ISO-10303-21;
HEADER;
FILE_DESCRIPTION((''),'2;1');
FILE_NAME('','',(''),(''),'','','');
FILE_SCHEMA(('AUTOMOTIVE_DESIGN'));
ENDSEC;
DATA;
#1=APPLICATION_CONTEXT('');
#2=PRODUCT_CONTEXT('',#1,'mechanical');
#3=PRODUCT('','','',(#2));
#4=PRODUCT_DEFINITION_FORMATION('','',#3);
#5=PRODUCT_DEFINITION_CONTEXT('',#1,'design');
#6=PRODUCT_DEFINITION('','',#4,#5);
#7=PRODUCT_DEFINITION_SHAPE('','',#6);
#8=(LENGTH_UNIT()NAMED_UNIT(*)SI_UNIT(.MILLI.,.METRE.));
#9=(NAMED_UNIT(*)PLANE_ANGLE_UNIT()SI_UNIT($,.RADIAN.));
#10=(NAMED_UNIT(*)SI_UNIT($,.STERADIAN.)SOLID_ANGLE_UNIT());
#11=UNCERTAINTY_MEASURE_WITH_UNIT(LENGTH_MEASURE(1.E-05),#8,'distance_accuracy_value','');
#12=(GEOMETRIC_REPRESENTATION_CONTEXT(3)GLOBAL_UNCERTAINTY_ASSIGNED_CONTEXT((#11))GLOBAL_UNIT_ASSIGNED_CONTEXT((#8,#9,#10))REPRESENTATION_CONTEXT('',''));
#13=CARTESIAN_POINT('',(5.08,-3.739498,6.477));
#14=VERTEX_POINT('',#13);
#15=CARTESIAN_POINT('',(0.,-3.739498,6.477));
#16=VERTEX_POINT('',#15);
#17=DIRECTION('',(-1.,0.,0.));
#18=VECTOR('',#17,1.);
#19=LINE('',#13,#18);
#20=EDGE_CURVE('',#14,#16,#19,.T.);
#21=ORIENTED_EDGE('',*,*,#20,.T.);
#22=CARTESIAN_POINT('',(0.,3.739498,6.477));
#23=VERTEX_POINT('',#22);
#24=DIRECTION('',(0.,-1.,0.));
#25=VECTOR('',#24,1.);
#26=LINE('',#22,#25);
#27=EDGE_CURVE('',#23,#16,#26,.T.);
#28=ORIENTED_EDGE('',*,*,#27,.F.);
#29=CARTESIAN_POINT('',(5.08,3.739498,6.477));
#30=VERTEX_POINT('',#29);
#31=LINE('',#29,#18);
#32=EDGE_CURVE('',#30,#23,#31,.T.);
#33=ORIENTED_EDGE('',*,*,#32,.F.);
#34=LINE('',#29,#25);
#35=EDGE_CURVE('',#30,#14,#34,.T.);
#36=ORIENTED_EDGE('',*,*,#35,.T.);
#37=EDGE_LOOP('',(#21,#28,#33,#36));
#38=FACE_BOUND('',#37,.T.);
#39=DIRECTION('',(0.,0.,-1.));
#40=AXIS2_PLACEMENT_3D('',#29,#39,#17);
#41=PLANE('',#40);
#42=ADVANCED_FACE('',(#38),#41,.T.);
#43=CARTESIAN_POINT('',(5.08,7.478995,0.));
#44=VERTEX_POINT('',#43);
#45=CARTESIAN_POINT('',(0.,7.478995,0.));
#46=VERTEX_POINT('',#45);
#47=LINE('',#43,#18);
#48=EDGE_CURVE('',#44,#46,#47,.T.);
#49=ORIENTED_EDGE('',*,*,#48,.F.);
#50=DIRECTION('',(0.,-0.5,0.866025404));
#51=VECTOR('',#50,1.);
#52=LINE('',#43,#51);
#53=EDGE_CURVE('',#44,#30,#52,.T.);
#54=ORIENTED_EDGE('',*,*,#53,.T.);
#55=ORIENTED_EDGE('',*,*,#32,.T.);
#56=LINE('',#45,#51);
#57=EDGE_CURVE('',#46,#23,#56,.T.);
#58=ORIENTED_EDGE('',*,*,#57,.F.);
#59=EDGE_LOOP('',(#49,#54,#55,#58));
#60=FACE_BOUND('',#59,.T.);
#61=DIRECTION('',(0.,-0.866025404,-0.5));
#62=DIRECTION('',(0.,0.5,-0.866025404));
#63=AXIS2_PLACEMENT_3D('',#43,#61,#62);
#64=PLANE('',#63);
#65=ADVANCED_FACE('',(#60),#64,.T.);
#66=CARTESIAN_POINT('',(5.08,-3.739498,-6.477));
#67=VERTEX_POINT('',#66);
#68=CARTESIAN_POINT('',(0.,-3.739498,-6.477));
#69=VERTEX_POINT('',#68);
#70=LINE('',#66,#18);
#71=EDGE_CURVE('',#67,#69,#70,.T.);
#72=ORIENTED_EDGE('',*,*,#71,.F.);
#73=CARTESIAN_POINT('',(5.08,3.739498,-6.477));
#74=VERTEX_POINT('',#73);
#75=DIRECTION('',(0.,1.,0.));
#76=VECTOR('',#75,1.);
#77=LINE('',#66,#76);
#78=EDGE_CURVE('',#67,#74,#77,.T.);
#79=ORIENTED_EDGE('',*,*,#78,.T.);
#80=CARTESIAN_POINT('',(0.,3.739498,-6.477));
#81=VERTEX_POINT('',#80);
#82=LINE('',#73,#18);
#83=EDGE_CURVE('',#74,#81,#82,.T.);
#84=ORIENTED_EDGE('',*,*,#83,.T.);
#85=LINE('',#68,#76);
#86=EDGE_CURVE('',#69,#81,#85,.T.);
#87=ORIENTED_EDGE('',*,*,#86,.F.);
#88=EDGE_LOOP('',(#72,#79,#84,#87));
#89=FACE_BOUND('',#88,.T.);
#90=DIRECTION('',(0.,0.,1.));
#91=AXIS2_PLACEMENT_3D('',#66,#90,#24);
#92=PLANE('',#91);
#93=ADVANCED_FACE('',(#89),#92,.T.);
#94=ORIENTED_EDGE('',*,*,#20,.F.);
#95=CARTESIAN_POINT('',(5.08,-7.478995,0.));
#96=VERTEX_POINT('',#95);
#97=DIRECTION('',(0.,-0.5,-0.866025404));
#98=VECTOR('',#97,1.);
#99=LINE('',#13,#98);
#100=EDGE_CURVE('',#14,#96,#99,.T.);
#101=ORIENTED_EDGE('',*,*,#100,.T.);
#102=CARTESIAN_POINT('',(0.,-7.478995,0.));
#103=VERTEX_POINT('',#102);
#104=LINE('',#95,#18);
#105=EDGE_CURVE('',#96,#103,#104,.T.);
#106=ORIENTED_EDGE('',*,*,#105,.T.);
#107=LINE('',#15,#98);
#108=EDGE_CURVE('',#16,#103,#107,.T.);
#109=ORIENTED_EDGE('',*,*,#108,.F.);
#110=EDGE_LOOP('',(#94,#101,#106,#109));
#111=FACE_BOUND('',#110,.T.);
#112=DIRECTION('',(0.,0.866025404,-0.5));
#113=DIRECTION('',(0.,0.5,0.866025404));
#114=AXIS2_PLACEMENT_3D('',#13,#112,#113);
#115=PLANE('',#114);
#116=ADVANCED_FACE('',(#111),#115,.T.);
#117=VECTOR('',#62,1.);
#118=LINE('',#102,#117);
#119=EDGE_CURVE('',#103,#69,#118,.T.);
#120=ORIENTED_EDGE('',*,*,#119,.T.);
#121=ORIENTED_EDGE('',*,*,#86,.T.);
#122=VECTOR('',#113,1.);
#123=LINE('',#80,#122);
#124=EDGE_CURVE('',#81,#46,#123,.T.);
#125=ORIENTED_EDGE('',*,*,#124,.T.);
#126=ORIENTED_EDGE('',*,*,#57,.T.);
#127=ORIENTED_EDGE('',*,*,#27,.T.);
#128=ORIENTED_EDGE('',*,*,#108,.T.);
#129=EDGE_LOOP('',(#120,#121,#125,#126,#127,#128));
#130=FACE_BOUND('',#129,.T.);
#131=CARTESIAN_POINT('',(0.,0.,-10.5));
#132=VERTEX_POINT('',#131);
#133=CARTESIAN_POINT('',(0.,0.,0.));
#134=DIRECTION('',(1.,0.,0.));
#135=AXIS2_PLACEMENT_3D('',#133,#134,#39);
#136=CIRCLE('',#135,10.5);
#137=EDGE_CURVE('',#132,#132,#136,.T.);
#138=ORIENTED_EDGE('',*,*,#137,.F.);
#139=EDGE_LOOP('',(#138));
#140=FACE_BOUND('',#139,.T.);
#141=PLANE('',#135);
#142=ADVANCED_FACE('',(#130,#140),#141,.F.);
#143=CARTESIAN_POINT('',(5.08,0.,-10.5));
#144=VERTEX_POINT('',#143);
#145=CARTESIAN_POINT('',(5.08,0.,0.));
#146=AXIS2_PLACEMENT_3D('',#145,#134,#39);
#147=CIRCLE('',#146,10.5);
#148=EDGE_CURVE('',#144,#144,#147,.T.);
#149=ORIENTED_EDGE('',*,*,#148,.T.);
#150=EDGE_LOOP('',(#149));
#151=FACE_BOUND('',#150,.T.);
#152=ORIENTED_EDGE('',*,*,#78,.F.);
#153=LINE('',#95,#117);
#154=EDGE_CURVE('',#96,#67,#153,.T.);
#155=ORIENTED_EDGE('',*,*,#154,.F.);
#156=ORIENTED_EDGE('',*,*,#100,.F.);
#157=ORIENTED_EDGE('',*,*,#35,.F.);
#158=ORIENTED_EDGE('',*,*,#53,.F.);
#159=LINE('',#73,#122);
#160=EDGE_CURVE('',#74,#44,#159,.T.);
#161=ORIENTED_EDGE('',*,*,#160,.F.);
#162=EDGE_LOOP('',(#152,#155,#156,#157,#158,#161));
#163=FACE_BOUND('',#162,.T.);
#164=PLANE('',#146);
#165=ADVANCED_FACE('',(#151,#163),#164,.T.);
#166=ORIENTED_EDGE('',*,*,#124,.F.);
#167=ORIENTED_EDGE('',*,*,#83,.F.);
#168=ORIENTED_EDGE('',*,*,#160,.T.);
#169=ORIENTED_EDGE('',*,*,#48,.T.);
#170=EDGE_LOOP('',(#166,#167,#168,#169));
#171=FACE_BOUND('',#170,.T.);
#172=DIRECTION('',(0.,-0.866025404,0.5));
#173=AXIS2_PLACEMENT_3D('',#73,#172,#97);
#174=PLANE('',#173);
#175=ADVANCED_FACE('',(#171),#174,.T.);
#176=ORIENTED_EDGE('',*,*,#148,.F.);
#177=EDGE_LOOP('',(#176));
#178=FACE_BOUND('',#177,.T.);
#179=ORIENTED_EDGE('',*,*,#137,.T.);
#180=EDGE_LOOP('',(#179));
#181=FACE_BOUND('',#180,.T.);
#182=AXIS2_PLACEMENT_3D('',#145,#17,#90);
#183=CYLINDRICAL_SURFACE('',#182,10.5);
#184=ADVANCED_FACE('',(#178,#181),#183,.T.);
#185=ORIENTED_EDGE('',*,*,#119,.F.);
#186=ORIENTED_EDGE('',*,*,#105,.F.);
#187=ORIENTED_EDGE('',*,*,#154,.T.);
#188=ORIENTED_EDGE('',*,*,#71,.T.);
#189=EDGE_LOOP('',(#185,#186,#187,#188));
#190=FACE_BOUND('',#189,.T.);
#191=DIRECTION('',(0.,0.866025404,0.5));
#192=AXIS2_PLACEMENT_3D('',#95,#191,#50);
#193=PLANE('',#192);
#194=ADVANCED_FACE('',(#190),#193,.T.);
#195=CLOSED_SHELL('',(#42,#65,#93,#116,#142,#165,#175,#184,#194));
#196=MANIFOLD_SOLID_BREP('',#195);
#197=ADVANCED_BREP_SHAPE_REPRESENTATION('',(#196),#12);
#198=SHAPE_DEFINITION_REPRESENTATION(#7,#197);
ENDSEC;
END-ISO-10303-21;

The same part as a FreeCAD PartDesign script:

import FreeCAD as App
import Part
import Sketcher
Q = App.Units.Quantity

doc = App.newDocument("Part")
body = doc.addObject("PartDesign::Body", "Body")

sketch1 = body.newObject("Sketcher::SketchObject", "Sketch")
sketch1.AttachmentSupport = (doc.getObject("YZ_Plane"), [""])
sketch1.MapMode = "FlatFace"
sketch1.addGeometry([
    Part.Circle(App.Vector(0, 0, 0), App.Vector(0, 0, 1), 10.5),
    Part.LineSegment(App.Vector(3.739498, 6.477, 0), App.Vector(7.478995, 0, 0)),
    Part.LineSegment(App.Vector(7.478995, 0, 0), App.Vector(3.739498, -6.477, 0)),
    Part.LineSegment(App.Vector(3.739498, -6.477, 0), App.Vector(-3.739498, -6.477, 0)),
    Part.LineSegment(App.Vector(-3.739498, -6.477, 0), App.Vector(-7.478995, 0, 0)),
    Part.LineSegment(App.Vector(-7.478995, 0, 0), App.Vector(-3.739498, 6.477, 0)),
    Part.LineSegment(App.Vector(-3.739498, 6.477, 0), App.Vector(3.739498, 6.477, 0)),
], False)
sketch1.addConstraint([
    Sketcher.Constraint("Coincident", 1, 2, 2, 1),
    Sketcher.Constraint("Coincident", 2, 2, 3, 1),
    Sketcher.Constraint("Coincident", 3, 2, 4, 1),
    Sketcher.Constraint("Coincident", 4, 2, 5, 1),
    Sketcher.Constraint("Coincident", 5, 2, 6, 1),
    Sketcher.Constraint("Coincident", 6, 2, 1, 1),
    Sketcher.Constraint("Horizontal", 3),
    Sketcher.Constraint("Horizontal", 6),
    Sketcher.Constraint("Coincident", 0, 3, -1, 1),
    Sketcher.Constraint("Symmetric", 1, 2, 4, 2, -1, 1),
    Sketcher.Constraint("Symmetric", 2, 2, 5, 2, -1, 1),
    Sketcher.Constraint("PointOnObject", 1, 2, -1),
    Sketcher.Constraint("Parallel", 1, 4),
    Sketcher.Constraint("Vertical", 3, 2, 5, 2),
    Sketcher.Constraint("Diameter", 0, Q("21 mm")),
    Sketcher.Constraint("Angle", 1, Q("-60 deg")),
    Sketcher.Constraint("DistanceY", 2, 2, -1, 1, Q("6.477 mm")),
    Sketcher.Constraint("DistanceX", 3, 2, 3, 1, Q("7.478995 mm")),
])
pad1 = body.newObject("PartDesign::Pad", "Pad")
pad1.Profile = sketch1
pad1.Length = 5.08

doc.recompute()
